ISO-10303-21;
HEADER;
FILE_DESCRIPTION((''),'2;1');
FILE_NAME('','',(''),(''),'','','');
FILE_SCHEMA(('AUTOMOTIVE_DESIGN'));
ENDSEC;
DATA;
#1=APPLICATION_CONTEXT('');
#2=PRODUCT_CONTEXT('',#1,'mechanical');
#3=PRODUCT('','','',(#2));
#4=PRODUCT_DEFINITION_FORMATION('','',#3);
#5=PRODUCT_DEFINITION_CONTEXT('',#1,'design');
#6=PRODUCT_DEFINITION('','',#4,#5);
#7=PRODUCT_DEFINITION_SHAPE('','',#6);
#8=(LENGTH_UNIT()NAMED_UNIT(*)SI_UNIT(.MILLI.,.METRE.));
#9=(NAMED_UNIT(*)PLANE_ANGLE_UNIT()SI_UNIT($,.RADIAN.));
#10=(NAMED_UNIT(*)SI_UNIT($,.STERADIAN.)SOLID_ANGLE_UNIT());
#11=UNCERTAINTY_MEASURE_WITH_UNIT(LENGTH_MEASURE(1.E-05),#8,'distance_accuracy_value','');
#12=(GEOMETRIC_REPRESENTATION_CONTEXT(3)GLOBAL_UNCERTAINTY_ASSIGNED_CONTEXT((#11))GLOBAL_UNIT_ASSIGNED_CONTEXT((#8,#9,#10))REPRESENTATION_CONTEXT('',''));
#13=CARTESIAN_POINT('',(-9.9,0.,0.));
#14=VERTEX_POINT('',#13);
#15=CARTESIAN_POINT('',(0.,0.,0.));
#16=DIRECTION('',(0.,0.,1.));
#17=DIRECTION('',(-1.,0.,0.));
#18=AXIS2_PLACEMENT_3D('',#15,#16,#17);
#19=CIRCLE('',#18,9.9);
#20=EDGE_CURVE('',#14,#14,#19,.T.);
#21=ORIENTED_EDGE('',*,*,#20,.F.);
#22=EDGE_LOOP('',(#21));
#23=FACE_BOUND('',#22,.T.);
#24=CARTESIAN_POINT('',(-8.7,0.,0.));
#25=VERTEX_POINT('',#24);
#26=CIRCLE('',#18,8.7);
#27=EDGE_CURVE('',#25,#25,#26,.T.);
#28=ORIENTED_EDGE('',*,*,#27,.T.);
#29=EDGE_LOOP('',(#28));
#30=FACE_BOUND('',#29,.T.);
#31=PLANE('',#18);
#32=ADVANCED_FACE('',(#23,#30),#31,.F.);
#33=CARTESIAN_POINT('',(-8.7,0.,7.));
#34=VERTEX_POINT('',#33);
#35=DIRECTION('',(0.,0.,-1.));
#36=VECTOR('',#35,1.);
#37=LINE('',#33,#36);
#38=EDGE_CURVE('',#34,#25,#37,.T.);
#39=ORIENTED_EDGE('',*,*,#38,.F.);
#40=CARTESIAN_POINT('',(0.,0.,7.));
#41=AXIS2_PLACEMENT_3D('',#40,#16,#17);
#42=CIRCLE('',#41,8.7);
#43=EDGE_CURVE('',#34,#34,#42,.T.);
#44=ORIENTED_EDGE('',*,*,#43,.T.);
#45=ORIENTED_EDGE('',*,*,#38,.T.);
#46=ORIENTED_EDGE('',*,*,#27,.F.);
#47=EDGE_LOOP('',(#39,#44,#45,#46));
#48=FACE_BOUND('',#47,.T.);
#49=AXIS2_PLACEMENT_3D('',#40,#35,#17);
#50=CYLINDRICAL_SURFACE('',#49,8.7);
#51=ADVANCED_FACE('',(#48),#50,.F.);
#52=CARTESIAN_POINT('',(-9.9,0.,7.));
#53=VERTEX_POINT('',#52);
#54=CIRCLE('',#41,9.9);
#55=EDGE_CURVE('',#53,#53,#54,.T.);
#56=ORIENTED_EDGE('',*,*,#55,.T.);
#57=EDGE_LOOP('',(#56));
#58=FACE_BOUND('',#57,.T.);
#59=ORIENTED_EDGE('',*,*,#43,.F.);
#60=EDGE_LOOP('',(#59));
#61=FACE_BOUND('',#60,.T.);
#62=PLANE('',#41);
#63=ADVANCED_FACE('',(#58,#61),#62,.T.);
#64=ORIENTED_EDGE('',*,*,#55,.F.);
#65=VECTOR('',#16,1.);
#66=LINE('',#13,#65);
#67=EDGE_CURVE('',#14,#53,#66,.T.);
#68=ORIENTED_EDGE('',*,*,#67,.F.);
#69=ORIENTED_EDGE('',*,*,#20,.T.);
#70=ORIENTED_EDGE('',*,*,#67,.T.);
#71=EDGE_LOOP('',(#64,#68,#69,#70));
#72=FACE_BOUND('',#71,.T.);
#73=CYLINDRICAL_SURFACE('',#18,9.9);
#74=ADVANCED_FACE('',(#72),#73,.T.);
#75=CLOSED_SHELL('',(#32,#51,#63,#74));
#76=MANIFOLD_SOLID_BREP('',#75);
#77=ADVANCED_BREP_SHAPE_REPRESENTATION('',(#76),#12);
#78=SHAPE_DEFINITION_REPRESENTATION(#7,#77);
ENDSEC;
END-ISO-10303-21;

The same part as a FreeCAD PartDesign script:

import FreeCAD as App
import Part
import Sketcher

doc = App.newDocument("Part")
params = doc.addObject("Spreadsheet::Sheet", "Params")
for row, (alias, value) in enumerate([
    ("sketch1_height", "7 mm"),
    ("sketch1_width", "1.2 mm"),
    ("revolution_angle", "360 deg"),
], start=1):
    params.set(f"A{row}", alias)
    params.set(f"B{row}", "=" + value)
    params.setAlias(f"B{row}", alias)

body = doc.addObject("PartDesign::Body", "Body")

# Sketch on XZ plane
sketch1 = body.newObject("Sketcher::SketchObject", "Sketch")
sketch1.AttachmentSupport = (doc.getObject("XZ_Plane"), [""])
sketch1.MapMode = "FlatFace"
sketch1.addGeometry([
    Part.LineSegment(App.Vector(-8.7, 7, 0), App.Vector(-8.7, 0, 0)),
    Part.LineSegment(App.Vector(-8.7, 0, 0), App.Vector(-9.9, 0, 0)),
    Part.LineSegment(App.Vector(-9.9, 0, 0), App.Vector(-9.9, 7, 0)),
    Part.LineSegment(App.Vector(-9.9, 7, 0), App.Vector(-8.7, 7, 0)),
], False)
sketch1.addConstraint([
    Sketcher.Constraint("Coincident", 0, 2, 1, 1),
    Sketcher.Constraint("Coincident", 1, 2, 2, 1),
    Sketcher.Constraint("Coincident", 2, 2, 3, 1),
    Sketcher.Constraint("Coincident", 3, 2, 0, 1),
    Sketcher.Constraint("Vertical", 0),
    Sketcher.Constraint("Horizontal", 1),
    Sketcher.Constraint("Vertical", 2),
    Sketcher.Constraint("Horizontal", 3),
    Sketcher.Constraint("PointOnObject", 0, 2, -1),
    Sketcher.Constraint("DistanceY", 0, 2, 0, 1, 7.0),
    Sketcher.Constraint("DistanceX", 1, 2, 1, 1, 1.2),
    Sketcher.Constraint("DistanceX", 0, 2, -1, 1, 8.7),
])
sketch1.setExpression("Constraints[9]", "Params.sketch1_height")
sketch1.setExpression("Constraints[10]", "Params.sketch1_width")
revolution = body.newObject("PartDesign::Revolution", "Revolution")
revolution.Profile = sketch1
revolution.ReferenceAxis = (sketch1, ["V_Axis"])
revolution.setExpression("Angle", "Params.revolution_angle")

doc.recompute()
